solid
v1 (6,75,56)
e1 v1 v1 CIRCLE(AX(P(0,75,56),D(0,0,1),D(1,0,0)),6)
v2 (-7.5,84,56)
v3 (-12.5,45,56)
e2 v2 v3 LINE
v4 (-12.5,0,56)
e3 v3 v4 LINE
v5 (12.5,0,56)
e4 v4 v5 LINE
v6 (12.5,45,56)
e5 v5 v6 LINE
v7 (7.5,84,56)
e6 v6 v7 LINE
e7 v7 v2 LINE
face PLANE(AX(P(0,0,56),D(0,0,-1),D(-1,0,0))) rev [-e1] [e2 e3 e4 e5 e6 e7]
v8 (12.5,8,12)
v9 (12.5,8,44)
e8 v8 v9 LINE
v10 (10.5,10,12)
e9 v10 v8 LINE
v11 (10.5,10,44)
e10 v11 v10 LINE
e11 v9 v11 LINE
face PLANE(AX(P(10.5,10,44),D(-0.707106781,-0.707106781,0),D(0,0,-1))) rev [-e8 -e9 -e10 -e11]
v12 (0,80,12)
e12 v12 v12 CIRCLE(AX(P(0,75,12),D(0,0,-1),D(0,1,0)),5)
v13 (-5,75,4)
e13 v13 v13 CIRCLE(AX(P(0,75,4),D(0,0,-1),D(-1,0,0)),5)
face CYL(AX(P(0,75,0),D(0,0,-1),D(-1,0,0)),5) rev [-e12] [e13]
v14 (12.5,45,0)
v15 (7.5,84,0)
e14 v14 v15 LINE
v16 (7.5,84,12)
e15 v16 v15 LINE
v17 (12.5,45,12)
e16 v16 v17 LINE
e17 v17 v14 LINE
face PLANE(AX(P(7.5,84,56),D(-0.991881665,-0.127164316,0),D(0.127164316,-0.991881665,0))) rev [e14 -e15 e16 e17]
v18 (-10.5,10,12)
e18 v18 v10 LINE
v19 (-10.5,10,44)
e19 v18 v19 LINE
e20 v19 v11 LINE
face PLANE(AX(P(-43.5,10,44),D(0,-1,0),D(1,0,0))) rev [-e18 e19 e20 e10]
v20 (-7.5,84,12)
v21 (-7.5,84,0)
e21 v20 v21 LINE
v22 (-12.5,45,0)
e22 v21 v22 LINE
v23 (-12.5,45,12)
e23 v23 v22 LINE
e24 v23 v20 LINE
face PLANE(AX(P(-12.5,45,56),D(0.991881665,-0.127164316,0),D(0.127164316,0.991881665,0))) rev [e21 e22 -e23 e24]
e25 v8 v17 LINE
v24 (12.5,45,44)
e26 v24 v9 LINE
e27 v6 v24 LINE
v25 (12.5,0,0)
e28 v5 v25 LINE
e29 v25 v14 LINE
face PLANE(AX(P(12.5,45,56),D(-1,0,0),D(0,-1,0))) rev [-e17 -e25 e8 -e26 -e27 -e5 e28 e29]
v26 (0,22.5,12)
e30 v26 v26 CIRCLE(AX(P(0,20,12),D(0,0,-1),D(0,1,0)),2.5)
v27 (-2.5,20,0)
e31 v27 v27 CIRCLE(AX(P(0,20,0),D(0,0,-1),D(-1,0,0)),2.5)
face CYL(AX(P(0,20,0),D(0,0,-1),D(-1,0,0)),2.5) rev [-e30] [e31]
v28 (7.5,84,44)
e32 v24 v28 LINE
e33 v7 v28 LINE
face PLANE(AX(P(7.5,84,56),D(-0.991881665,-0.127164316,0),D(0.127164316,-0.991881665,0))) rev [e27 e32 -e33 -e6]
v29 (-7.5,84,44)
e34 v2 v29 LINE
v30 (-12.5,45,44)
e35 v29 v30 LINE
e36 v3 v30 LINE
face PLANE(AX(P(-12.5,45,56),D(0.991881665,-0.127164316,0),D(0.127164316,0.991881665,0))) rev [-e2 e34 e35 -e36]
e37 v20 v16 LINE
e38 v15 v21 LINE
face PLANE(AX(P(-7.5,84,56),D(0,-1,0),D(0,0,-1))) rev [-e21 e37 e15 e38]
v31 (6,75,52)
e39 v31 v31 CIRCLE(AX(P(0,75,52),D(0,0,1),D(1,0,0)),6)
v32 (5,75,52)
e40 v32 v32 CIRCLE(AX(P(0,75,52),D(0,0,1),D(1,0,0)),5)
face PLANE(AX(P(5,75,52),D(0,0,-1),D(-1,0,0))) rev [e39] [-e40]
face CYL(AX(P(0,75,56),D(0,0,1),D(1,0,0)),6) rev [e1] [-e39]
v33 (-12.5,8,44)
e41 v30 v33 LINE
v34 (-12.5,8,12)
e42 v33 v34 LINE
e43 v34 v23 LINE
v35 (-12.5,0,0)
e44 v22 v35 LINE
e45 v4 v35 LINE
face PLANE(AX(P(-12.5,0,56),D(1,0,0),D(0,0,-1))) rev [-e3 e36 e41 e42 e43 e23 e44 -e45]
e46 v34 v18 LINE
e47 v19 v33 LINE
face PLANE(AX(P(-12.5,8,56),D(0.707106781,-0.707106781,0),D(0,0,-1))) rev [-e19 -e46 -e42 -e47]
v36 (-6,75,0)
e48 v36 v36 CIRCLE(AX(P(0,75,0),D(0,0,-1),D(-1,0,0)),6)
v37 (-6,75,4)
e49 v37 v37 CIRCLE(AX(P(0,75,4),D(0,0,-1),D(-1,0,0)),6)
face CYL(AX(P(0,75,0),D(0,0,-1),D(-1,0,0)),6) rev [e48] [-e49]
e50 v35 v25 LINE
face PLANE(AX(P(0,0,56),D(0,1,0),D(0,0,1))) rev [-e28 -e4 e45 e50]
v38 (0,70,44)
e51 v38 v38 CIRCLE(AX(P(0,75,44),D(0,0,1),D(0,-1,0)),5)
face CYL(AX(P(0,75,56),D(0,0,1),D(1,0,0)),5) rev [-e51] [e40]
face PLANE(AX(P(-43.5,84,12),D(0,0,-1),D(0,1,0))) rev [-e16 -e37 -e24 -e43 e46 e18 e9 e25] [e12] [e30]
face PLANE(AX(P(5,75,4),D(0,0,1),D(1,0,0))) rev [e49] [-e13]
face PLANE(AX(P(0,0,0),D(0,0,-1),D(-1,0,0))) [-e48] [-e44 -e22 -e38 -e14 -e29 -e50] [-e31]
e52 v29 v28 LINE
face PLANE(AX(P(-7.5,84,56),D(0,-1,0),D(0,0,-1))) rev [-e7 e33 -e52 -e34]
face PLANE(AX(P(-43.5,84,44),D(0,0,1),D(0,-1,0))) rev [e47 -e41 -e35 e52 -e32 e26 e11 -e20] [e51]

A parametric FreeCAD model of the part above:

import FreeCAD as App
import Part
import Sketcher
from FreeCAD import Vector
Q = App.Units.Quantity


def edges_at(feature, points):
    """Names of the edges that pass closest to the given points."""
    edges = feature.Shape.Edges
    near = lambda p: min(range(len(edges)), key=lambda i: edges[i].distToShape(Part.Vertex(*p))[0])
    return sorted({f"Edge{near(p) + 1}" for p in points})


def add_polygon(sketch, points):
    """Adds a closed chain of lines whose ends are joined by coincident constraints."""
    first, n = sketch.GeometryCount, len(points)
    for a, b in zip(points, points[1:] + points[:1]):
        sketch.addGeometry(Part.LineSegment(App.Vector(*a, 0), App.Vector(*b, 0)), False)
    for i in range(n):
        sketch.addConstraint(Sketcher.Constraint("Coincident", first + i, 2, first + (i + 1) % n, 1))

doc = App.newDocument("Part")
body = doc.addObject("PartDesign::Body", "Body")

# Sketch on XY plane
sketch1 = doc.addObject("Sketcher::SketchObject", "Sketch")
body.addObject(sketch1)
sketch1.AttachmentSupport = (doc.XY_Plane, [""])
sketch1.MapMode = "FlatFace"
add_polygon(sketch1, [(12, 0), (12, 45), (8, 84), (-8, 84), (-12, 45), (-12, 0)])  # lines 0-5
sketch1.addConstraint(Sketcher.Constraint("Vertical", 0))
sketch1.addConstraint(Sketcher.Constraint("Horizontal", 2))
sketch1.addConstraint(Sketcher.Constraint("Vertical", 4))
sketch1.addConstraint(Sketcher.Constraint("Horizontal", 5))
sketch1.addConstraint(Sketcher.Constraint("Symmetric", 4, 2, 5, 2, -1, 1))
sketch1.addConstraint(Sketcher.Constraint("Horizontal", 0, 2, 3, 2))
sketch1.addConstraint(Sketcher.Constraint("Equal", 1, 3))
sketch1.addConstraint(Sketcher.Constraint("DistanceX", 2, 2, 2, 1, Q("15 mm")))
sketch1.addConstraint(Sketcher.Constraint("DistanceX", 5, 1, 5, 2, Q("25 mm")))
sketch1.addConstraint(Sketcher.Constraint("DistanceY", 0, 1, 0, 2, Q("45 mm")))
sketch1.addConstraint(Sketcher.Constraint("DistanceY", -1, 1, 1, 2, Q("84 mm")))
pad1 = doc.addObject("PartDesign::Pad", "Pad")
body.addObject(pad1)
pad1.Profile = sketch1
pad1.Length = 56

# Sketch on YZ plane
sketch2 = doc.addObject("Sketcher::SketchObject", "Sketch001")
body.addObject(sketch2)
sketch2.AttachmentSupport = (doc.YZ_Plane, [""])
sketch2.MapMode = "FlatFace"
sketch2.AttachmentOffset = App.Placement(Vector(0, 0, 12.5), App.Rotation())
add_polygon(sketch2, [(84, 44), (10, 44), (10, 12), (84, 12)])  # lines 0-3
sketch2.addConstraint(Sketcher.Constraint("Horizontal", 0))
sketch2.addConstraint(Sketcher.Constraint("Vertical", 1))
sketch2.addConstraint(Sketcher.Constraint("Horizontal", 2))
sketch2.addConstraint(Sketcher.Constraint("Vertical", 3))
sketch2.addConstraint(Sketcher.Constraint("DistanceX", 0, 2, 0, 1, Q("74 mm")))
sketch2.addConstraint(Sketcher.Constraint("DistanceY", 1, 2, 1, 1, Q("32 mm")))
sketch2.addConstraint(Sketcher.Constraint("DistanceX", -1, 1, 0, 2, Q("10 mm")))
sketch2.addConstraint(Sketcher.Constraint("DistanceY", -1, 1, 0, 2, Q("44 mm")))
pocket1 = doc.addObject("PartDesign::Pocket", "Pocket")
body.addObject(pocket1)
pocket1.Profile = sketch2
pocket1.Length = 56
doc.recompute()

chamfer = doc.addObject("PartDesign::Chamfer", "Chamfer")
body.addObject(chamfer)
chamfer.Base = (pocket1, edges_at(pocket1, [(-12.5, 10, 28), (12.5, 10, 28)]))
chamfer.Size = 2

# Sketch on XY plane
sketch3 = doc.addObject("Sketcher::SketchObject", "Sketch002")
body.addObject(sketch3)
sketch3.AttachmentSupport = (doc.XY_Plane, [""])
sketch3.MapMode = "FlatFace"
sketch3.AttachmentOffset = App.Placement(Vector(0, 0, 56), App.Rotation())
sketch3.addGeometry(Part.Circle(Vector(0, 75, 0), Vector(0, 0, 1), 5), False)
sketch3.addConstraint(Sketcher.Constraint("PointOnObject", 0, 3, -2))
sketch3.addConstraint(Sketcher.Constraint("Diameter", 0, Q("10 mm")))
sketch3.addConstraint(Sketcher.Constraint("DistanceY", -1, 1, 0, 3, Q("75 mm")))
doc.recompute()
hole = doc.addObject("PartDesign::Hole", "Hole")
body.addObject(hole)
hole.Profile = sketch3
hole.ThreadType = "None"
hole.Diameter = 10
hole.DepthType = "Dimension"
hole.Depth = 20
hole.DrillPoint = "Angled"
hole.DrillPointAngle = 118
hole.HoleCutType = "Counterbore"
hole.HoleCutDiameter = 12
hole.HoleCutDepth = 4

# Sketch on XY plane
sketch4 = doc.addObject("Sketcher::SketchObject", "Sketch003")
body.addObject(sketch4)
sketch4.AttachmentSupport = (doc.XY_Plane, [""])
sketch4.MapMode = "FlatFace"
sketch4.addGeometry(Part.Circle(Vector(0, 75, 0), Vector(0, 0, 1), 5), False)
sketch4.addConstraint(Sketcher.Constraint("PointOnObject", 0, 3, -2))
sketch4.addConstraint(Sketcher.Constraint("Diameter", 0, Q("10 mm")))
sketch4.addConstraint(Sketcher.Constraint("DistanceY", -1, 1, 0, 3, Q("75 mm")))
doc.recompute()
hole2 = doc.addObject("PartDesign::Hole", "Hole001")
body.addObject(hole2)
hole2.Profile = sketch4
hole2.ThreadType = "None"
hole2.Diameter = 10
hole2.DepthType = "Dimension"
hole2.Depth = 20
hole2.DrillPoint = "Angled"
hole2.DrillPointAngle = 118
hole2.HoleCutType = "Counterbore"
hole2.HoleCutDiameter = 12
hole2.HoleCutDepth = 4
hole2.Reversed = True

# Sketch on XY plane
sketch5 = doc.addObject("Sketcher::SketchObject", "Sketch004")
body.addObject(sketch5)
sketch5.AttachmentSupport = (doc.XY_Plane, [""])
sketch5.MapMode = "FlatFace"
sketch5.addGeometry(Part.Circle(Vector(0, 20, 0), Vector(0, 0, 1), 2.5), False)
sketch5.addConstraint(Sketcher.Constraint("PointOnObject", 0, 3, -2))
sketch5.addConstraint(Sketcher.Constraint("Diameter", 0, Q("5 mm")))
sketch5.addConstraint(Sketcher.Constraint("DistanceY", -1, 1, 0, 3, Q("20 mm")))
doc.recompute()
hole3 = doc.addObject("PartDesign::Hole", "Hole002")
body.addObject(hole3)
hole3.Profile = sketch5
hole3.ThreadType = "None"
hole3.Diameter = 5
hole3.DepthType = "Dimension"
hole3.Depth = 27
hole3.DrillPoint = "Angled"
hole3.DrillPointAngle = 118
hole3.Reversed = True

doc.recompute()
